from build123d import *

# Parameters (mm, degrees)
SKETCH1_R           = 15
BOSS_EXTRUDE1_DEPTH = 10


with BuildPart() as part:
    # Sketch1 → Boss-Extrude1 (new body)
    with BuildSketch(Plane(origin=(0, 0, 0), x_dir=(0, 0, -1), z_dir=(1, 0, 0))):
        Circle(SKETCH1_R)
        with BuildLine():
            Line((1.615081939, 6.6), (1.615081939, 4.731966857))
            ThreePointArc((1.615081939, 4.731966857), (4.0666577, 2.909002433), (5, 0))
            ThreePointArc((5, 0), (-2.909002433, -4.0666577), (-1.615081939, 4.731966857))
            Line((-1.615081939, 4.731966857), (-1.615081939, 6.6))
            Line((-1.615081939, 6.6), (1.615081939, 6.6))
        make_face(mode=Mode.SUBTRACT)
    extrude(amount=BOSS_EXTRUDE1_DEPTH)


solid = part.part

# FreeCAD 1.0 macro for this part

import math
import FreeCAD as App
import Part
import Sketcher
Q = App.Units.Quantity

doc = App.newDocument("Part")
body = doc.addObject("PartDesign::Body", "Body")

# Sketch on YZ plane
sketch1 = body.newObject("Sketcher::SketchObject", "Sketch")
sketch1.AttachmentSupport = (doc.getObject("YZ_Plane"), [""])
sketch1.MapMode = "FlatFace"
sketch1.addGeometry(Part.Circle(App.Vector(0, 0, 0), App.Vector(0, 0, 1), 15), False)
sketch1.addGeometry(Part.LineSegment(App.Vector(6.6, 1.6, 0), App.Vector(6.6, -1.6, 0)), False)
sketch1.addGeometry(Part.LineSegment(App.Vector(6.6, -1.6, 0), App.Vector(4.7, -1.6, 0)), False)
sketch1.addGeometry(Part.ArcOfCircle(Part.Circle(App.Vector(0, 0, 0), App.Vector(0, 0, 1), 5), math.radians(-90), math.radians(-19)), False)
sketch1.addGeometry(Part.ArcOfCircle(Part.Circle(App.Vector(0, 0, 0), App.Vector(0, 0, 1), 5), math.radians(19), math.radians(270)), False)
sketch1.addGeometry(Part.LineSegment(App.Vector(4.7, 1.6, 0), App.Vector(6.6, 1.6, 0)), False)
sketch1.addConstraint(Sketcher.Constraint("Coincident", 1, 2, 2, 1))
sketch1.addConstraint(Sketcher.Constraint("Coincident", 2, 2, 3, 2))
sketch1.addConstraint(Sketcher.Constraint("Tangent", 3, 1, 4, 2))
sketch1.addConstraint(Sketcher.Constraint("Coincident", 4, 1, 5, 1))
sketch1.addConstraint(Sketcher.Constraint("Coincident", 5, 2, 1, 1))
sketch1.addConstraint(Sketcher.Constraint("Vertical", 1))
sketch1.addConstraint(Sketcher.Constraint("Horizontal", 2))
sketch1.addConstraint(Sketcher.Constraint("Horizontal", 5))
sketch1.addConstraint(Sketcher.Constraint("Coincident", 0, 3, -1, 1))
sketch1.addConstraint(Sketcher.Constraint("Coincident", 3, 3, -1, 1))
sketch1.addConstraint(Sketcher.Constraint("Equal", 3, 4))
sketch1.addConstraint(Sketcher.Constraint("PointOnObject", 3, 1, -2))
sketch1.addConstraint(Sketcher.Constraint("Vertical", 2, 2, 4, 1))
sketch1.addConstraint(Sketcher.Constraint("Diameter", 0, Q("30 mm")))
sketch1.addConstraint(Sketcher.Constraint("Radius", 3, Q("5 mm")))
sketch1.addConstraint(Sketcher.Constraint("DistanceX", -1, 1, 1, 2, Q("6.6 mm")))
sketch1.addConstraint(Sketcher.Constraint("DistanceX", 2, 2, 2, 1, Q("1.868033 mm")))
pad1 = body.newObject("PartDesign::Pad", "Pad")
pad1.Profile = sketch1
pad1.Length = 10

doc.recompute()
